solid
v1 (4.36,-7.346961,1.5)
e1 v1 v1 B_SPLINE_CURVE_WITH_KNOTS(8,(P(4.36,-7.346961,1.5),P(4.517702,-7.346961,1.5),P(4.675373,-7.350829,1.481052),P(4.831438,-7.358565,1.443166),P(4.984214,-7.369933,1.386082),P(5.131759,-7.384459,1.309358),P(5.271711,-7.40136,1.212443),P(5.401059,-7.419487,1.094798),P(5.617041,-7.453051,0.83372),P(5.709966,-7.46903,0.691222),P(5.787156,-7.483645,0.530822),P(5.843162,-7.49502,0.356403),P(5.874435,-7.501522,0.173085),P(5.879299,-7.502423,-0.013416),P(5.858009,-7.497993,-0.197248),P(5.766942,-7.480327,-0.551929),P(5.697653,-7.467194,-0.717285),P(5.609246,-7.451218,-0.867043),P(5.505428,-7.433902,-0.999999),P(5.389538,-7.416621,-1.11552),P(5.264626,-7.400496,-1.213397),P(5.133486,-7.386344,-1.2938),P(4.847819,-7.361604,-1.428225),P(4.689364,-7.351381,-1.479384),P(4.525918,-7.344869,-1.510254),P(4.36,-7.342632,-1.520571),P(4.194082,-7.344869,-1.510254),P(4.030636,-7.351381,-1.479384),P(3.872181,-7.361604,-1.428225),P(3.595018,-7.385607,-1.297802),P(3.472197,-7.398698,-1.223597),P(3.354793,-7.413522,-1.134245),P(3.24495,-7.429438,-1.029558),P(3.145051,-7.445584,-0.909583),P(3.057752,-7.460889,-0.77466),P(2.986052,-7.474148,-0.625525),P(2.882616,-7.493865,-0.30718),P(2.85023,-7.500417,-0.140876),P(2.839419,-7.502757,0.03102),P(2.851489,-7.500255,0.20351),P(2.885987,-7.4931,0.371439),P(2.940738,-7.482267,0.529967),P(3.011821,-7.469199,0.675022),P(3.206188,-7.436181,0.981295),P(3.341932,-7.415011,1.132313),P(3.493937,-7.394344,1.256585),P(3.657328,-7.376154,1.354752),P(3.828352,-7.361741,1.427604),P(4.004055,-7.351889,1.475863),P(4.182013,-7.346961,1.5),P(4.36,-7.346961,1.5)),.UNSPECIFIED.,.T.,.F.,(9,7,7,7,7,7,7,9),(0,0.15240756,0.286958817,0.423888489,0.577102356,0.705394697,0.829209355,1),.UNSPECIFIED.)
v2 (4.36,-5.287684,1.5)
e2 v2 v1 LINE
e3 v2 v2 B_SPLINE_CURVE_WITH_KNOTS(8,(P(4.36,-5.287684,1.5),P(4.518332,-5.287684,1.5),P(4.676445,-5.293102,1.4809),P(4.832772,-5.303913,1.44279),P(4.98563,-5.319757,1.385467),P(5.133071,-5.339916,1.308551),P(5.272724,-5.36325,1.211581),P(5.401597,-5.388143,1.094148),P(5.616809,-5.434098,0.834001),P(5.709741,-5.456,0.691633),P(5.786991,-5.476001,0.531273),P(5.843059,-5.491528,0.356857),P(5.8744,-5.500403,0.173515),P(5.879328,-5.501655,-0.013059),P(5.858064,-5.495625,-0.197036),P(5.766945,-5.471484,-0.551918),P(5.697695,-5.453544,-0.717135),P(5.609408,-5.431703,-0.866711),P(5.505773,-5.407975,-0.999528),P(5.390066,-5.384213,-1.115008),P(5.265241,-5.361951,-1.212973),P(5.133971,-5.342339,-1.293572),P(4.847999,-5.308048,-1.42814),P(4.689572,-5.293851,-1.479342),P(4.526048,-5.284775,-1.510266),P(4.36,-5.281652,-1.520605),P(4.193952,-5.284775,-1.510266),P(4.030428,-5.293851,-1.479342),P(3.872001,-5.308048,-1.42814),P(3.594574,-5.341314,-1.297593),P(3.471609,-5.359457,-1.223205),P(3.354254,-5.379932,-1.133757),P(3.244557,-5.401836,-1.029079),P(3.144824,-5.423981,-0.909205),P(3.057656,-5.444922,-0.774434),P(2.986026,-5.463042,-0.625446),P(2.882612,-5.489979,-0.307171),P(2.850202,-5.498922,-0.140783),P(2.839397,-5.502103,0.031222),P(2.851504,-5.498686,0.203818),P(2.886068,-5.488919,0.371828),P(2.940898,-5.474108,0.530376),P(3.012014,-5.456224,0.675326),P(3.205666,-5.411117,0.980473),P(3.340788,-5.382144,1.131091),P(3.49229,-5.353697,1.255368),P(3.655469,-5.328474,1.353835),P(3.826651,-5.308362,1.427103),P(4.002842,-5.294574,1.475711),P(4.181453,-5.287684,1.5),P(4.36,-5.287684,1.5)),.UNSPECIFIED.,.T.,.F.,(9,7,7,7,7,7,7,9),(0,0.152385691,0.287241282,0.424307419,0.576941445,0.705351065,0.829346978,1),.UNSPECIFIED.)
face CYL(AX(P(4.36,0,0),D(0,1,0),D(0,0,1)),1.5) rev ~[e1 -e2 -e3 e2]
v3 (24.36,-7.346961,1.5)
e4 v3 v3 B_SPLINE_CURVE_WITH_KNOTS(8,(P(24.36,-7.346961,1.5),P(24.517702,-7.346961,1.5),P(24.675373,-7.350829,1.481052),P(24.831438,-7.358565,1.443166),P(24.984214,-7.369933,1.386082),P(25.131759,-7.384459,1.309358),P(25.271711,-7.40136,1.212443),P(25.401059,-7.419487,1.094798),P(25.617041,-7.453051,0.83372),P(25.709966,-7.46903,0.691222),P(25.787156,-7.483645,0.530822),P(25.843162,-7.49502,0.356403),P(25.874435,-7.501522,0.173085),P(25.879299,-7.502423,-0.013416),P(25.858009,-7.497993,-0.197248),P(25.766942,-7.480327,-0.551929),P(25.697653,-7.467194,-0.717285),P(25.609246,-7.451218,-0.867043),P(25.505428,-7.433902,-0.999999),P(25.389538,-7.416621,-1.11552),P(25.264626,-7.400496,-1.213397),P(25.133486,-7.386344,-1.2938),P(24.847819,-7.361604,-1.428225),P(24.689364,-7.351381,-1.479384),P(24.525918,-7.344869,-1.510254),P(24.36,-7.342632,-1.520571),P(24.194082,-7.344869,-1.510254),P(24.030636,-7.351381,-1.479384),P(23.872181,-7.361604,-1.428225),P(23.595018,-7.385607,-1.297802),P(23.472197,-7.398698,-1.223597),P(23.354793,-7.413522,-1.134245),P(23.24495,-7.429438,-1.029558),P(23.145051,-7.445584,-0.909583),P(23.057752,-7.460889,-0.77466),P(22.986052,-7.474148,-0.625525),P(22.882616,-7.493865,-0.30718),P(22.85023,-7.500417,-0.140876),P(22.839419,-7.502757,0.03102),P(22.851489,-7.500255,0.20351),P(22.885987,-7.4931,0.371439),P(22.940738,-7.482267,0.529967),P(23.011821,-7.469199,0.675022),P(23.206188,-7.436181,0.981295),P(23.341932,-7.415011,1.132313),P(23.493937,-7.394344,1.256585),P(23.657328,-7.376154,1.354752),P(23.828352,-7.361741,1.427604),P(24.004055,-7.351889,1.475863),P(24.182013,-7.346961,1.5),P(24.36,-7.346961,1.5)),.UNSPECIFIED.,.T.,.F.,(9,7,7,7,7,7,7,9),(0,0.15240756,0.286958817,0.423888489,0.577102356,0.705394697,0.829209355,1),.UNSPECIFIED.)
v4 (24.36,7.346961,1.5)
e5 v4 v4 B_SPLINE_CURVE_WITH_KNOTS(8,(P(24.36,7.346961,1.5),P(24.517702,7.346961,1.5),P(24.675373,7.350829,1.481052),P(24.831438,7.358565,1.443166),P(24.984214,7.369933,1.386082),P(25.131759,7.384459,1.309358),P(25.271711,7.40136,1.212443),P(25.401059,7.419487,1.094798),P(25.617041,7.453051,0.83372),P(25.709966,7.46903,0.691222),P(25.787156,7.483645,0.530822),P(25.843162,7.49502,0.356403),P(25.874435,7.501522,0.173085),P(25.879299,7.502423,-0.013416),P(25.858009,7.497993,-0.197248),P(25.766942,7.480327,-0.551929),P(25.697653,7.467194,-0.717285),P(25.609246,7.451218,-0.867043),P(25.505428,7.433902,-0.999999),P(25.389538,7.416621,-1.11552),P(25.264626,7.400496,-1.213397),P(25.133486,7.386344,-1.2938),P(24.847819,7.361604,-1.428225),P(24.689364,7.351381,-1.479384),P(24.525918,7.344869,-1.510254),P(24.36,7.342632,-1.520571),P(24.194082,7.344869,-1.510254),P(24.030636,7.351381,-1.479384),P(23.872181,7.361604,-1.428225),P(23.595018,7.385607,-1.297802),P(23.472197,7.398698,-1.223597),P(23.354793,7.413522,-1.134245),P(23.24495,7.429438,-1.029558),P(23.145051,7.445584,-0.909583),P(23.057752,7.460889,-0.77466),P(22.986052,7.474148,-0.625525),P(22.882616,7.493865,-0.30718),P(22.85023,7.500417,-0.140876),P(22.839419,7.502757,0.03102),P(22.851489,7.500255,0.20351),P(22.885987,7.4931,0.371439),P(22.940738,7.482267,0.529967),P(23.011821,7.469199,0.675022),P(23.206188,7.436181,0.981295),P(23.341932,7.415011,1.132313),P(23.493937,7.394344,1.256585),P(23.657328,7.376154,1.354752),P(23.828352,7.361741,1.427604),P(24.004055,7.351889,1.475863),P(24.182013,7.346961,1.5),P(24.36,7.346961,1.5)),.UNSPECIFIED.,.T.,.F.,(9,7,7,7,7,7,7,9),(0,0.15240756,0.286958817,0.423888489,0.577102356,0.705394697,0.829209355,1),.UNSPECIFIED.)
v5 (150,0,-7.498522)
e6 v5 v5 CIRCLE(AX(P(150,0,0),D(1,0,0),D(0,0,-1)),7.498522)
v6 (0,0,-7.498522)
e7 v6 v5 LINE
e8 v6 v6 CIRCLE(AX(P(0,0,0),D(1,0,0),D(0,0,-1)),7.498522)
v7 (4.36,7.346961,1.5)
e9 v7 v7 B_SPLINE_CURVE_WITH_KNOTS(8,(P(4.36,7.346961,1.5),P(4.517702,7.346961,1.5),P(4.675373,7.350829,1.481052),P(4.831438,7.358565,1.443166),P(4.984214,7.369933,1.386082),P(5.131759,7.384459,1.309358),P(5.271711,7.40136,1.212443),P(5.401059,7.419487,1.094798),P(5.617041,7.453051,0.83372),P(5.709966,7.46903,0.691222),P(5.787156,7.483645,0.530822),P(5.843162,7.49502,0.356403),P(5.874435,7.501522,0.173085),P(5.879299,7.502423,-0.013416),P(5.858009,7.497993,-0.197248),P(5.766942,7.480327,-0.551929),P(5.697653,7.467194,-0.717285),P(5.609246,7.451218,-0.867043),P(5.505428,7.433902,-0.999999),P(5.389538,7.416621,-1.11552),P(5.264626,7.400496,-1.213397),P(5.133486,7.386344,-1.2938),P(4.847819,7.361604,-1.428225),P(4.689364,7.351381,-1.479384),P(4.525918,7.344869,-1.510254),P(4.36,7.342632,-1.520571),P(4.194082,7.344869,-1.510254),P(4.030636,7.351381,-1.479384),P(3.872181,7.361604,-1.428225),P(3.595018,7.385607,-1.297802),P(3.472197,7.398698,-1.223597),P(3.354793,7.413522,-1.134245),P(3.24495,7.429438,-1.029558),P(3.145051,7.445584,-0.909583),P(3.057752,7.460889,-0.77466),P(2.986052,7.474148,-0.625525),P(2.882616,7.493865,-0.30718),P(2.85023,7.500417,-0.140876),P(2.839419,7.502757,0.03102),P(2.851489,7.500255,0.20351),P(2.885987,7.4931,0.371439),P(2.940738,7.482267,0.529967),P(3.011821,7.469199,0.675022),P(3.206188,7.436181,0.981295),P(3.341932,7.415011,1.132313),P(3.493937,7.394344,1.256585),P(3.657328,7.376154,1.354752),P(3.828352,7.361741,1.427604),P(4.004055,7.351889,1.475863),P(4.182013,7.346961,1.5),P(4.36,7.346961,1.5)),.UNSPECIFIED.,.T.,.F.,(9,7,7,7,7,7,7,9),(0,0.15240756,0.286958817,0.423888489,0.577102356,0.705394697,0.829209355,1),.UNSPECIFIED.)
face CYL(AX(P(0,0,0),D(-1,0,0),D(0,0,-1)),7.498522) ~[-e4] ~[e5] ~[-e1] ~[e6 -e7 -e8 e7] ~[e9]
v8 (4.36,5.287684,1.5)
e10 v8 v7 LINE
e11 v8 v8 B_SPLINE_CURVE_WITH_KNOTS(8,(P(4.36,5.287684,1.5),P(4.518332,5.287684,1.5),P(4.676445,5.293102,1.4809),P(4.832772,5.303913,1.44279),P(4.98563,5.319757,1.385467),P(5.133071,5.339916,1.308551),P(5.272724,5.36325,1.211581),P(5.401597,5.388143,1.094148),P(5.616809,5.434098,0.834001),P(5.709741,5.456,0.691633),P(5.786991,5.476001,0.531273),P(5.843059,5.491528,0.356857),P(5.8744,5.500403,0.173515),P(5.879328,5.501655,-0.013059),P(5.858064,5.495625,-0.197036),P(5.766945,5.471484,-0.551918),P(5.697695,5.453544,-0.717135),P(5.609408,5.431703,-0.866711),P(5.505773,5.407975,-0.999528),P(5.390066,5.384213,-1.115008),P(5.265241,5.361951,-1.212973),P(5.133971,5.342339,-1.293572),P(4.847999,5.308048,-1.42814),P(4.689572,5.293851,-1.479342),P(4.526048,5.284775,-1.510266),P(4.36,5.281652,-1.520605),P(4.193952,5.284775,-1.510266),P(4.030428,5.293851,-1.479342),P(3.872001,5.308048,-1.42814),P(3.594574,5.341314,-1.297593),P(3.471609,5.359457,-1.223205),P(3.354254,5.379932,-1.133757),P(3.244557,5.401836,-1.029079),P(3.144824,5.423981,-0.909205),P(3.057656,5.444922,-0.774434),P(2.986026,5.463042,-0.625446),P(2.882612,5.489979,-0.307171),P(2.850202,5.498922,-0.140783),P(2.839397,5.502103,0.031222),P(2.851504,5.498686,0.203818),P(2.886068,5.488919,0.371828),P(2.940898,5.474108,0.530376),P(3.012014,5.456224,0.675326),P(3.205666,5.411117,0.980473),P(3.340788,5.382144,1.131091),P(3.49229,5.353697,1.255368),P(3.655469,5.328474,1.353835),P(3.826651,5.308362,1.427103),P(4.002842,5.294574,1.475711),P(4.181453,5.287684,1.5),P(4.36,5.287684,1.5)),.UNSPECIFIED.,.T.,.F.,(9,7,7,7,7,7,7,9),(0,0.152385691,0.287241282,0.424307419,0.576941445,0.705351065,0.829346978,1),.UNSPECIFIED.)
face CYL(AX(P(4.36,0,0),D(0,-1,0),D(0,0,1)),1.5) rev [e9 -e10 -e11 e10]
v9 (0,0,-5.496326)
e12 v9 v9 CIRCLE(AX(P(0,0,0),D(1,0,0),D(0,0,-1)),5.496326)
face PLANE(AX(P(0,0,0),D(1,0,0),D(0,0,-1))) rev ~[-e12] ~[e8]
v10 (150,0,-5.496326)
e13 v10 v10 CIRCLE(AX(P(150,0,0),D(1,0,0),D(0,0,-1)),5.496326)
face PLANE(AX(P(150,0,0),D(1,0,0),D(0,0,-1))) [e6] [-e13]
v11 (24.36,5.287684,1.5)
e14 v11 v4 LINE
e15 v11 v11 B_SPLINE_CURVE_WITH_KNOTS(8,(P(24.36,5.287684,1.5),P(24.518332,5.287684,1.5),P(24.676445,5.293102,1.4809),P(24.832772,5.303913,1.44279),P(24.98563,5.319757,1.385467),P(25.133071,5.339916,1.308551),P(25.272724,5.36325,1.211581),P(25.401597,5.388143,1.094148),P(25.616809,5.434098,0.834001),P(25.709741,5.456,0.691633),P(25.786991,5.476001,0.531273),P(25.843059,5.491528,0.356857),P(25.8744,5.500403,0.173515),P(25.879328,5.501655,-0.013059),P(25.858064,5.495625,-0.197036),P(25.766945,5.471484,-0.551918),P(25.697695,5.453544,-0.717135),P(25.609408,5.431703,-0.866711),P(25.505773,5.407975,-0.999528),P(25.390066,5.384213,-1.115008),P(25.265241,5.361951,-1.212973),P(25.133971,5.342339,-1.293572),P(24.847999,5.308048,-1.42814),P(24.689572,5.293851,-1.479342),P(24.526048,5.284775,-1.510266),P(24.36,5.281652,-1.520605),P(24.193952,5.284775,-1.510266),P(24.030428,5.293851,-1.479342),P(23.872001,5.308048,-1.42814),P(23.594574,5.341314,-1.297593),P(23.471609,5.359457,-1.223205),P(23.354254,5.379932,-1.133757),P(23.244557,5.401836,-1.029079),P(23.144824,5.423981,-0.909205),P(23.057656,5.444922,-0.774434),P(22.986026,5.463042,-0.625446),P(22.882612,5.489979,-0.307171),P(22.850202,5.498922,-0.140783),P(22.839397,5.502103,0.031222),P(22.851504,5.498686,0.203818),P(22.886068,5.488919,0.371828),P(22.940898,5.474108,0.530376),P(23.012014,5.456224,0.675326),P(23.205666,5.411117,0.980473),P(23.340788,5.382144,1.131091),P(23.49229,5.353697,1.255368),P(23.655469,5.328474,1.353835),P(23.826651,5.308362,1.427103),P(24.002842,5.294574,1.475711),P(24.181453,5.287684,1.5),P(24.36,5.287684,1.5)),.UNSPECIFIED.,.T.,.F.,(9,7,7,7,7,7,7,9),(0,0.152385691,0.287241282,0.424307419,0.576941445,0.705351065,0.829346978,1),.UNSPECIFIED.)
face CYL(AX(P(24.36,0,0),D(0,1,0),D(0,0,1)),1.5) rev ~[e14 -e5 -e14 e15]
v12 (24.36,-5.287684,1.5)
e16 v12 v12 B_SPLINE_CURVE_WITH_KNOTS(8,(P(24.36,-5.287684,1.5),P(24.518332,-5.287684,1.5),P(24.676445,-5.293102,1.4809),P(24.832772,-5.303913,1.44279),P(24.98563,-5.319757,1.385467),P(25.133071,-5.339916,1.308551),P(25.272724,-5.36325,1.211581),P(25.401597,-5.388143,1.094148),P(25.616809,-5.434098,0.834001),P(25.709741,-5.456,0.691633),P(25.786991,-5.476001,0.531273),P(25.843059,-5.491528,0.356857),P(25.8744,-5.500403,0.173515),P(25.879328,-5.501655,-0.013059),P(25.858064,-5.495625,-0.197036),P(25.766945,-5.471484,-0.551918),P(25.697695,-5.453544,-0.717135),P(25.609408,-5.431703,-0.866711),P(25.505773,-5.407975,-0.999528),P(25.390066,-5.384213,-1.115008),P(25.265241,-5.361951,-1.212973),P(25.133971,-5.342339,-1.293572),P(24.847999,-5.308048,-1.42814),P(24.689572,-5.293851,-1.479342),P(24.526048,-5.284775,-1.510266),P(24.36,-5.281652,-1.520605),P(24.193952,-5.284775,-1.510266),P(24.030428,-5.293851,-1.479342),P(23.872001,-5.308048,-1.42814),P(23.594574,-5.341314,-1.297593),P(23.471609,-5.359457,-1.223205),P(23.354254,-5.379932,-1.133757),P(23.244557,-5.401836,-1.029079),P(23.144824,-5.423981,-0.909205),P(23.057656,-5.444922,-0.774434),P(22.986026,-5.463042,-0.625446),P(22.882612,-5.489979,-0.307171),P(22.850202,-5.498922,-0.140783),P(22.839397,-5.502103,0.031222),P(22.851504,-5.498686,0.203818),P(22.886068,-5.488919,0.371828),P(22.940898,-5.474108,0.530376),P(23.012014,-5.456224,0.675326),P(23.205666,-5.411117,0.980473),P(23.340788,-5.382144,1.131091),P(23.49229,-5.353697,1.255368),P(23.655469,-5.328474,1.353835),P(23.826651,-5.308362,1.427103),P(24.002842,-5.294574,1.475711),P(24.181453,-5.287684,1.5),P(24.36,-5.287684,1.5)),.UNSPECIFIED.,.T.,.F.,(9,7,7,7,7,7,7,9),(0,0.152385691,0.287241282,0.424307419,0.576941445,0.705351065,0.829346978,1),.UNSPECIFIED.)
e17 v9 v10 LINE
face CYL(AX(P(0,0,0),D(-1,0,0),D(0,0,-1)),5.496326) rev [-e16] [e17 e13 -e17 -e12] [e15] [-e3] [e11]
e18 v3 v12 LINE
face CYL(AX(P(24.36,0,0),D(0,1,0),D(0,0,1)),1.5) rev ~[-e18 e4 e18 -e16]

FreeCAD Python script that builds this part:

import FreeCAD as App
import Part
import Sketcher

V = App.Vector
Q = App.Units.Quantity

doc = App.newDocument("Part")
body = doc.addObject("PartDesign::Body", "Body")

sketch1 = doc.addObject("Sketcher::SketchObject", "Sketch")
body.addObject(sketch1)
sketch1.AttachmentSupport = (doc.YZ_Plane, [""])
sketch1.MapMode = "FlatFace"
sketch1.addGeometry([
    Part.Circle(V(0, 0, 0), V(0, 0, 1), 7.498522),
    Part.Circle(V(0, 0, 0), V(0, 0, 1), 5.496326),
], False)
sketch1.addConstraint([
    Sketcher.Constraint("Coincident", 0, 3, -1, 1),
    Sketcher.Constraint("Coincident", 1, 3, -1, 1),
    Sketcher.Constraint("Diameter", 0, Q("14.997044 mm")),
    Sketcher.Constraint("Diameter", 1, Q("10.992652 mm")),
])
pad1 = doc.addObject("PartDesign::Pad", "Pad")
body.addObject(pad1)
pad1.Profile = sketch1
pad1.Length = 150

sketch2 = doc.addObject("Sketcher::SketchObject", "Sketch001")
body.addObject(sketch2)
sketch2.AttachmentSupport = (doc.XZ_Plane, [""])
sketch2.MapMode = "FlatFace"
sketch2.addGeometry([
    Part.Circle(V(4.36, 0, 0), V(0, 0, 1), 1.5),
    Part.Circle(V(24.36, 0, 0), V(0, 0, 1), 1.5),
], False)
sketch2.addConstraint([
    Sketcher.Constraint("Equal", 0, 1),
    Sketcher.Constraint("PointOnObject", 0, 3, -1),
    Sketcher.Constraint("PointOnObject", 1, 3, -1),
    Sketcher.Constraint("Diameter", 0, Q("3 mm")),
    Sketcher.Constraint("DistanceX", 0, 3, 1, 3, Q("20 mm")),
    Sketcher.Constraint("DistanceX", -1, 1, 0, 3, Q("4.36 mm")),
])
pocket1 = doc.addObject("PartDesign::Pocket", "Pocket")
body.addObject(pocket1)
pocket1.Profile = sketch2
pocket1.Length = 28
pocket1.Midplane = True

doc.recompute()
